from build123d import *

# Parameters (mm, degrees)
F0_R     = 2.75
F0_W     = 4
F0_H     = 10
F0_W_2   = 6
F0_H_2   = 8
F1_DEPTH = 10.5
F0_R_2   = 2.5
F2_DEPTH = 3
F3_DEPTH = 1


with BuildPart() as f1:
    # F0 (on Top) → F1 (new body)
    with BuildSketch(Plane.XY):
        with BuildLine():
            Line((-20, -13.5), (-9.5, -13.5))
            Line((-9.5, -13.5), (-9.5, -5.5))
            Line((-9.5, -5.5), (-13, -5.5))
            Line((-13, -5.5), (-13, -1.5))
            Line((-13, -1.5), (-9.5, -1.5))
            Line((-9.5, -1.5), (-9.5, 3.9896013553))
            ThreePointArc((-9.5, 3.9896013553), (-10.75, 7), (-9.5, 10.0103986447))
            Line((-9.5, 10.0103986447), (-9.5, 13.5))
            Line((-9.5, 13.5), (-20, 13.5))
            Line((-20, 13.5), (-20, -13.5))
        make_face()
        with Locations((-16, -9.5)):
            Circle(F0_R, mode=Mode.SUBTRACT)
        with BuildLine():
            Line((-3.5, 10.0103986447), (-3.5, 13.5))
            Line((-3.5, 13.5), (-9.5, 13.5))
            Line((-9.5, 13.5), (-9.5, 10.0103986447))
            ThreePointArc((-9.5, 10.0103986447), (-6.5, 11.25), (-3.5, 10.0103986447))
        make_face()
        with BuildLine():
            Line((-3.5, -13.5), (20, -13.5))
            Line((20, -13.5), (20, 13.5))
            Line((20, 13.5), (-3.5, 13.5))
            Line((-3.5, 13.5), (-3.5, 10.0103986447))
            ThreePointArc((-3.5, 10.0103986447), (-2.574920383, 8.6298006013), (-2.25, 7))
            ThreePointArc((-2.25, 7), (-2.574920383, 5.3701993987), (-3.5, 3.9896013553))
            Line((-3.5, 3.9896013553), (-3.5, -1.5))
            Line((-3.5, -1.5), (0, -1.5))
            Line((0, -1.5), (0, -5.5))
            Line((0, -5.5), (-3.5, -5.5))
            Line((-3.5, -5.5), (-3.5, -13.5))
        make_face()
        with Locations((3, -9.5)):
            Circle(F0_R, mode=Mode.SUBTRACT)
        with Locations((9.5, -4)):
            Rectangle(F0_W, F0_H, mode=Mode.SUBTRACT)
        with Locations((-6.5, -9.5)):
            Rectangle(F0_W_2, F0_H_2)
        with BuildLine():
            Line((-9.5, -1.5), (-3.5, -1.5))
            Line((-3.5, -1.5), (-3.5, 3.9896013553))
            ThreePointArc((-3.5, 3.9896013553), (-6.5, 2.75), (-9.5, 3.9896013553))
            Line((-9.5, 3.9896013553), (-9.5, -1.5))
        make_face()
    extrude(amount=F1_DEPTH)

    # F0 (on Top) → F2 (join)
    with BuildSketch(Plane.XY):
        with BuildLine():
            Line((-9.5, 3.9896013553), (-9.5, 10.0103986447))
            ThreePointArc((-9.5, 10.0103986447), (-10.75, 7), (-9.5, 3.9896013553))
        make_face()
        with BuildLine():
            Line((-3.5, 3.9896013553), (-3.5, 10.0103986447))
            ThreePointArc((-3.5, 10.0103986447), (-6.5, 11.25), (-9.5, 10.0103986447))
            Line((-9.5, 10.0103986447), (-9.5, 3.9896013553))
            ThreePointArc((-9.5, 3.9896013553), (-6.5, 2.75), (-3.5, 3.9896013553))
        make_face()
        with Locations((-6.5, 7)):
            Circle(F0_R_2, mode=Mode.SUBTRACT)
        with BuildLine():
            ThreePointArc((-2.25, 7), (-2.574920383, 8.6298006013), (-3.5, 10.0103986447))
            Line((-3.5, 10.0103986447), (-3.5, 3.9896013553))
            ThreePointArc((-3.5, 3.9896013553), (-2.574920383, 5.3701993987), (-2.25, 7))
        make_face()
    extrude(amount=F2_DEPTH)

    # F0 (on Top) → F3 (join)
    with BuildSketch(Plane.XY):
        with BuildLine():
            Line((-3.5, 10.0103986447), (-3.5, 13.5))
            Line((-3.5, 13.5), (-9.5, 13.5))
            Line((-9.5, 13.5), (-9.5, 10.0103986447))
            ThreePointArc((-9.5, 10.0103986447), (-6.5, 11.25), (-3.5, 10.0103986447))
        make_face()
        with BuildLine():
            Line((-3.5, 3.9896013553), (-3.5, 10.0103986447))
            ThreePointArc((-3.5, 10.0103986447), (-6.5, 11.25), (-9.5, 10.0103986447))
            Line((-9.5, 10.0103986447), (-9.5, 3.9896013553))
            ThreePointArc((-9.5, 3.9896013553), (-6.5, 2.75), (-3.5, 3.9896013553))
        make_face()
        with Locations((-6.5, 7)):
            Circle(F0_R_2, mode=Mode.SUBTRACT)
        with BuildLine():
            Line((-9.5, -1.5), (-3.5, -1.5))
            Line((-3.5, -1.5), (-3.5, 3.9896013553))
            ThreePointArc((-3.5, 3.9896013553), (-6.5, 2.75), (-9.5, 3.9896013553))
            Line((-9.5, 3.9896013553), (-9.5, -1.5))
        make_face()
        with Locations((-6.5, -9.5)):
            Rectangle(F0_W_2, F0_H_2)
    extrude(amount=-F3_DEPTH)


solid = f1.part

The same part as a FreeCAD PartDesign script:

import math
import FreeCAD as App
import Part
import Sketcher
from FreeCAD import Vector
Q = App.Units.Quantity

doc = App.newDocument("Part")
params = doc.addObject("Spreadsheet::Sheet", "Params")
for row, (alias, value) in enumerate([
    ("sketch1_diameter", "5.5 mm"),
    ("sketch1_width", "40 mm"),
    ("sketch1_width2", "13 mm"),
    ("sketch1_width3", "4 mm"),
    ("sketch1_height", "27 mm"),
    ("pad1_length", "10.5 mm"),
    ("sketch2_diameter", "5 mm"),
    ("sketch2_radius", "4.25 mm"),
    ("sketch2_width", "3 mm"),
    ("pad2_length", "3 mm"),
    ("sketch3_diameter", "5 mm"),
    ("sketch3_width", "6 mm"),
    ("sketch3_height", "15 mm"),
    ("sketch3_height2", "8 mm"),
    ("pad3_length", "1 mm"),
], start=1):
    params.set(f"A{row}", alias)
    params.set(f"B{row}", "=" + value)
    params.setAlias(f"B{row}", alias)

body = doc.addObject("PartDesign::Body", "Body")

sketch1 = doc.addObject("Sketcher::SketchObject", "Sketch")
body.addObject(sketch1)
sketch1.AttachmentSupport = (doc.XY_Plane, [""])
sketch1.MapMode = "FlatFace"
sketch1.addGeometry(Part.LineSegment(Vector(-20, -13.5, 0), Vector(20, -13.5, 0)), False)
sketch1.addGeometry(Part.LineSegment(Vector(20, -13.5, 0), Vector(20, 13.5, 0)), False)
sketch1.addGeometry(Part.LineSegment(Vector(20, 13.5, 0), Vector(-20, 13.5, 0)), False)
sketch1.addGeometry(Part.LineSegment(Vector(-20, 13.5, 0), Vector(-20, -13.5, 0)), False)
sketch1.addGeometry(Part.LineSegment(Vector(-13, -5.5, 0), Vector(-13, -1.5, 0)), False)
sketch1.addGeometry(Part.LineSegment(Vector(-13, -1.5, 0), Vector(0, -1.5, 0)), False)
sketch1.addGeometry(Part.LineSegment(Vector(0, -1.5, 0), Vector(0, -5.5, 0)), False)
sketch1.addGeometry(Part.LineSegment(Vector(0, -5.5, 0), Vector(-13, -5.5, 0)), False)
sketch1.addGeometry(Part.ArcOfCircle(Part.Circle(Vector(-6.5, 7, 0), Vector(0, 0, 1), 4.25), math.radians(134.900872), math.radians(225.099128)), False)
sketch1.addGeometry(Part.ArcOfCircle(Part.Circle(Vector(-6.5, 7, 0), Vector(0, 0, 1), 4.25), math.radians(45.099128), math.radians(134.900872)), False)
sketch1.addGeometry(Part.ArcOfCircle(Part.Circle(Vector(-6.5, 7, 0), Vector(0, 0, 1), 4.25), math.radians(0), math.radians(45.099128)), False)
sketch1.addGeometry(Part.ArcOfCircle(Part.Circle(Vector(-6.5, 7, 0), Vector(0, 0, 1), 4.25), math.radians(-45.099128), math.radians(0)), False)
sketch1.addGeometry(Part.ArcOfCircle(Part.Circle(Vector(-6.5, 7, 0), Vector(0, 0, 1), 4.25), math.radians(-134.900872), math.radians(-45.099128)), False)
sketch1.addGeometry(Part.Circle(Vector(-16, -9.5, 0), Vector(0, 0, 1), 2.75), False)
sketch1.addGeometry(Part.Circle(Vector(3, -9.5, 0), Vector(0, 0, 1), 2.75), False)
sketch1.addGeometry(Part.LineSegment(Vector(11.5, -9, 0), Vector(7.5, -9, 0)), False)
sketch1.addGeometry(Part.LineSegment(Vector(7.5, -9, 0), Vector(7.5, 1, 0)), False)
sketch1.addGeometry(Part.LineSegment(Vector(7.5, 1, 0), Vector(11.5, 1, 0)), False)
sketch1.addGeometry(Part.LineSegment(Vector(11.5, 1, 0), Vector(11.5, -9, 0)), False)
sketch1.addConstraint(Sketcher.Constraint("Coincident", 0, 2, 1, 1))
sketch1.addConstraint(Sketcher.Constraint("Coincident", 1, 2, 2, 1))
sketch1.addConstraint(Sketcher.Constraint("Coincident", 2, 2, 3, 1))
sketch1.addConstraint(Sketcher.Constraint("Coincident", 3, 2, 0, 1))
sketch1.addConstraint(Sketcher.Constraint("Coincident", 4, 2, 5, 1))
sketch1.addConstraint(Sketcher.Constraint("Coincident", 5, 2, 6, 1))
sketch1.addConstraint(Sketcher.Constraint("Coincident", 6, 2, 7, 1))
sketch1.addConstraint(Sketcher.Constraint("Coincident", 7, 2, 4, 1))
sketch1.addConstraint(Sketcher.Constraint("Tangent", 8, 1, 9, 2))
sketch1.addConstraint(Sketcher.Constraint("Tangent", 9, 1, 10, 2))
sketch1.addConstraint(Sketcher.Constraint("Tangent", 10, 1, 11, 2))
sketch1.addConstraint(Sketcher.Constraint("Tangent", 11, 1, 12, 2))
sketch1.addConstraint(Sketcher.Constraint("Tangent", 12, 1, 8, 2))
sketch1.addConstraint(Sketcher.Constraint("Coincident", 15, 2, 16, 1))
sketch1.addConstraint(Sketcher.Constraint("Coincident", 16, 2, 17, 1))
sketch1.addConstraint(Sketcher.Constraint("Coincident", 17, 2, 18, 1))
sketch1.addConstraint(Sketcher.Constraint("Coincident", 18, 2, 15, 1))
sketch1.addConstraint(Sketcher.Constraint("Horizontal", 0))
sketch1.addConstraint(Sketcher.Constraint("Vertical", 1))
sketch1.addConstraint(Sketcher.Constraint("Horizontal", 2))
sketch1.addConstraint(Sketcher.Constraint("Vertical", 3))
sketch1.addConstraint(Sketcher.Constraint("Vertical", 4))
sketch1.addConstraint(Sketcher.Constraint("Horizontal", 5))
sketch1.addConstraint(Sketcher.Constraint("Vertical", 6))
sketch1.addConstraint(Sketcher.Constraint("Horizontal", 7))
sketch1.addConstraint(Sketcher.Constraint("Horizontal", 15))
sketch1.addConstraint(Sketcher.Constraint("Vertical", 16))
sketch1.addConstraint(Sketcher.Constraint("Horizontal", 17))
sketch1.addConstraint(Sketcher.Constraint("Vertical", 18))
sketch1.addConstraint(Sketcher.Constraint("Coincident", 10, 3, 8, 3))
sketch1.addConstraint(Sketcher.Constraint("Equal", 13, 14))
sketch1.addConstraint(Sketcher.Constraint("Symmetric", 0, 2, 2, 2, -1, 1))
sketch1.addConstraint(Sketcher.Constraint("PointOnObject", 5, 2, -2))
sketch1.addConstraint(Sketcher.Constraint("Horizontal", 13, 3, 14, 3))
sketch1.addConstraint(Sketcher.Constraint("Horizontal", 8, 1, 9, 1))
sketch1.addConstraint(Sketcher.Constraint("Horizontal", 12, 3, 10, 1))
sketch1.addConstraint(Sketcher.Constraint("Horizontal", 11, 1, 12, 1))
sketch1.addConstraint(Sketcher.Constraint("Vertical", 9, 1, 11, 1))
sketch1.addConstraint(Sketcher.Constraint("Equal", 17, 4))
sketch1.addConstraint(Sketcher.Constraint("Diameter", 13, Q("5.5 mm")))
sketch1.addConstraint(Sketcher.Constraint("DistanceX", 0, 1, 0, 2, Q("40 mm")))
sketch1.addConstraint(Sketcher.Constraint("DistanceX", 5, 1, 5, 2, Q("13 mm")))
sketch1.addConstraint(Sketcher.Constraint("DistanceX", 15, 2, 15, 1, Q("4 mm")))
sketch1.addConstraint(Sketcher.Constraint("DistanceY", 1, 1, 1, 2, Q("27 mm")))
sketch1.addConstraint(Sketcher.Constraint("DistanceY", 16, 1, 16, 2, Q("10 mm")))
sketch1.addConstraint(Sketcher.Constraint("Radius", 8, Q("4.25 mm")))
sketch1.addConstraint(Sketcher.Constraint("DistanceY", -1, 1, 8, 3, Q("7 mm")))
sketch1.addConstraint(Sketcher.Constraint("DistanceX", 13, 3, -1, 1, Q("16 mm")))
sketch1.addConstraint(Sketcher.Constraint("DistanceX", -1, 1, 14, 3, Q("3 mm")))
sketch1.addConstraint(Sketcher.Constraint("DistanceY", 15, 2, -1, 1, Q("9 mm")))
sketch1.addConstraint(Sketcher.Constraint("DistanceY", 0, 2, 14, 3, Q("4 mm")))
sketch1.addConstraint(Sketcher.Constraint("DistanceY", 13, 3, 4, 2, Q("8 mm")))
sketch1.addConstraint(Sketcher.Constraint("DistanceX", 8, 1, 8, 3, Q("3 mm")))
sketch1.addConstraint(Sketcher.Constraint("DistanceX", 11, 1, 15, 2, Q("11 mm")))
sketch1.addConstraint(Sketcher.Constraint("DistanceX", 8, 3, -1, 1, Q("6.5 mm")))
sketch1.setExpression("Constraints[39]", "Params.sketch1_diameter")
sketch1.setExpression("Constraints[40]", "Params.sketch1_width")
sketch1.setExpression("Constraints[41]", "Params.sketch1_width2")
sketch1.setExpression("Constraints[42]", "Params.sketch1_width3")
sketch1.setExpression("Constraints[43]", "Params.sketch1_height")
pad1 = doc.addObject("PartDesign::Pad", "Pad")
body.addObject(pad1)
pad1.Profile = sketch1
pad1.setExpression("Length", "Params.pad1_length")

sketch2 = doc.addObject("Sketcher::SketchObject", "Sketch001")
body.addObject(sketch2)
sketch2.AttachmentSupport = (doc.XY_Plane, [""])
sketch2.MapMode = "FlatFace"
sketch2.addGeometry(Part.ArcOfCircle(Part.Circle(Vector(-6.5, 7, 0), Vector(0, 0, 1), 4.25), math.radians(134.900872), math.radians(225.099128)), False)
sketch2.addGeometry(Part.ArcOfCircle(Part.Circle(Vector(-6.5, 7, 0), Vector(0, 0, 1), 4.25), math.radians(-134.900872), math.radians(-45.099128)), False)
sketch2.addGeometry(Part.ArcOfCircle(Part.Circle(Vector(-6.5, 7, 0), Vector(0, 0, 1), 4.25), math.radians(-45.099128), math.radians(0)), False)
sketch2.addGeometry(Part.ArcOfCircle(Part.Circle(Vector(-6.5, 7, 0), Vector(0, 0, 1), 4.25), math.radians(0), math.radians(45.099128)), False)
sketch2.addGeometry(Part.ArcOfCircle(Part.Circle(Vector(-6.5, 7, 0), Vector(0, 0, 1), 4.25), math.radians(45.099128), math.radians(134.900872)), False)
sketch2.addGeometry(Part.Circle(Vector(-6.5, 7, 0), Vector(0, 0, 1), 2.5), False)
sketch2.addConstraint(Sketcher.Constraint("Tangent", 0, 2, 1, 1))
sketch2.addConstraint(Sketcher.Constraint("Tangent", 1, 2, 2, 1))
sketch2.addConstraint(Sketcher.Constraint("Tangent", 2, 2, 3, 1))
sketch2.addConstraint(Sketcher.Constraint("Tangent", 3, 2, 4, 1))
sketch2.addConstraint(Sketcher.Constraint("Tangent", 4, 2, 0, 1))
sketch2.addConstraint(Sketcher.Constraint("Coincident", 2, 3, 0, 3))
sketch2.addConstraint(Sketcher.Constraint("Coincident", 5, 3, 0, 3))
sketch2.addConstraint(Sketcher.Constraint("Horizontal", 0, 2, 1, 2))
sketch2.addConstraint(Sketcher.Constraint("Horizontal", 5, 3, 2, 2))
sketch2.addConstraint(Sketcher.Constraint("Horizontal", 3, 2, 4, 2))
sketch2.addConstraint(Sketcher.Constraint("Vertical", 1, 2, 3, 2))
sketch2.addConstraint(Sketcher.Constraint("Diameter", 5, Q("5 mm")))
sketch2.addConstraint(Sketcher.Constraint("Radius", 0, Q("4.25 mm")))
sketch2.addConstraint(Sketcher.Constraint("DistanceY", -1, 1, 0, 3, Q("7 mm")))
sketch2.addConstraint(Sketcher.Constraint("DistanceX", 0, 2, 0, 3, Q("3 mm")))
sketch2.addConstraint(Sketcher.Constraint("DistanceX", 0, 3, -1, 1, Q("6.5 mm")))
sketch2.setExpression("Constraints[11]", "Params.sketch2_diameter")
sketch2.setExpression("Constraints[12]", "Params.sketch2_radius")
sketch2.setExpression("Constraints[14]", "Params.sketch2_width")
pad2 = doc.addObject("PartDesign::Pad", "Pad001")
body.addObject(pad2)
pad2.Profile = sketch2
pad2.setExpression("Length", "Params.pad2_length")

sketch3 = doc.addObject("Sketcher::SketchObject", "Sketch002")
body.addObject(sketch3)
sketch3.AttachmentSupport = (doc.XY_Plane, [""])
sketch3.MapMode = "FlatFace"
sketch3.addGeometry(Part.LineSegment(Vector(-3.5, 13.5, 0), Vector(-9.5, 13.5, 0)), False)
sketch3.addGeometry(Part.LineSegment(Vector(-9.5, 13.5, 0), Vector(-9.5, -1.5, 0)), False)
sketch3.addGeometry(Part.LineSegment(Vector(-9.5, -1.5, 0), Vector(-3.5, -1.5, 0)), False)
sketch3.addGeometry(Part.LineSegment(Vector(-3.5, -1.5, 0), Vector(-3.5, 13.5, 0)), False)
sketch3.addGeometry(Part.Circle(Vector(-6.5, 7, 0), Vector(0, 0, 1), 2.5), False)
sketch3.addGeometry(Part.LineSegment(Vector(-9.5, -5.5, 0), Vector(-9.5, -13.5, 0)), False)
sketch3.addGeometry(Part.LineSegment(Vector(-9.5, -13.5, 0), Vector(-3.5, -13.5, 0)), False)
sketch3.addGeometry(Part.LineSegment(Vector(-3.5, -13.5, 0), Vector(-3.5, -5.5, 0)), False)
sketch3.addGeometry(Part.LineSegment(Vector(-3.5, -5.5, 0), Vector(-9.5, -5.5, 0)), False)
sketch3.addConstraint(Sketcher.Constraint("Coincident", 0, 2, 1, 1))
sketch3.addConstraint(Sketcher.Constraint("Coincident", 1, 2, 2, 1))
sketch3.addConstraint(Sketcher.Constraint("Coincident", 2, 2, 3, 1))
sketch3.addConstraint(Sketcher.Constraint("Coincident", 3, 2, 0, 1))
sketch3.addConstraint(Sketcher.Constraint("Coincident", 5, 2, 6, 1))
sketch3.addConstraint(Sketcher.Constraint("Coincident", 6, 2, 7, 1))
sketch3.addConstraint(Sketcher.Constraint("Coincident", 7, 2, 8, 1))
sketch3.addConstraint(Sketcher.Constraint("Coincident", 8, 2, 5, 1))
sketch3.addConstraint(Sketcher.Constraint("Horizontal", 0))
sketch3.addConstraint(Sketcher.Constraint("Vertical", 1))
sketch3.addConstraint(Sketcher.Constraint("Horizontal", 2))
sketch3.addConstraint(Sketcher.Constraint("Vertical", 3))
sketch3.addConstraint(Sketcher.Constraint("Vertical", 5))
sketch3.addConstraint(Sketcher.Constraint("Horizontal", 6))
sketch3.addConstraint(Sketcher.Constraint("Vertical", 7))
sketch3.addConstraint(Sketcher.Constraint("Horizontal", 8))
sketch3.addConstraint(Sketcher.Constraint("Symmetric", 0, 2, 5, 2, -1))
sketch3.addConstraint(Sketcher.Constraint("Vertical", 3, 2, 6, 2))
sketch3.addConstraint(Sketcher.Constraint("Diameter", 4, Q("5 mm")))
sketch3.addConstraint(Sketcher.Constraint("DistanceX", 0, 2, 0, 1, Q("6 mm")))
sketch3.addConstraint(Sketcher.Constraint("DistanceY", 1, 2, 1, 1, Q("15 mm")))
sketch3.addConstraint(Sketcher.Constraint("DistanceY", 5, 2, 5, 1, Q("8 mm")))
sketch3.addConstraint(Sketcher.Constraint("DistanceY", -1, 1, 4, 3, Q("7 mm")))
sketch3.addConstraint(Sketcher.Constraint("DistanceX", 0, 2, 4, 3, Q("3 mm")))
sketch3.addConstraint(Sketcher.Constraint("DistanceY", 5, 2, 1, 2, Q("12 mm")))
sketch3.addConstraint(Sketcher.Constraint("DistanceX", 4, 3, -1, 1, Q("6.5 mm")))
sketch3.setExpression("Constraints[18]", "Params.sketch3_diameter")
sketch3.setExpression("Constraints[19]", "Params.sketch3_width")
sketch3.setExpression("Constraints[20]", "Params.sketch3_height")
sketch3.setExpression("Constraints[21]", "Params.sketch3_height2")
pad3 = doc.addObject("PartDesign::Pad", "Pad002")
body.addObject(pad3)
pad3.Profile = sketch3
pad3.setExpression("Length", "Params.pad3_length")
pad3.Reversed = True

doc.recompute()
